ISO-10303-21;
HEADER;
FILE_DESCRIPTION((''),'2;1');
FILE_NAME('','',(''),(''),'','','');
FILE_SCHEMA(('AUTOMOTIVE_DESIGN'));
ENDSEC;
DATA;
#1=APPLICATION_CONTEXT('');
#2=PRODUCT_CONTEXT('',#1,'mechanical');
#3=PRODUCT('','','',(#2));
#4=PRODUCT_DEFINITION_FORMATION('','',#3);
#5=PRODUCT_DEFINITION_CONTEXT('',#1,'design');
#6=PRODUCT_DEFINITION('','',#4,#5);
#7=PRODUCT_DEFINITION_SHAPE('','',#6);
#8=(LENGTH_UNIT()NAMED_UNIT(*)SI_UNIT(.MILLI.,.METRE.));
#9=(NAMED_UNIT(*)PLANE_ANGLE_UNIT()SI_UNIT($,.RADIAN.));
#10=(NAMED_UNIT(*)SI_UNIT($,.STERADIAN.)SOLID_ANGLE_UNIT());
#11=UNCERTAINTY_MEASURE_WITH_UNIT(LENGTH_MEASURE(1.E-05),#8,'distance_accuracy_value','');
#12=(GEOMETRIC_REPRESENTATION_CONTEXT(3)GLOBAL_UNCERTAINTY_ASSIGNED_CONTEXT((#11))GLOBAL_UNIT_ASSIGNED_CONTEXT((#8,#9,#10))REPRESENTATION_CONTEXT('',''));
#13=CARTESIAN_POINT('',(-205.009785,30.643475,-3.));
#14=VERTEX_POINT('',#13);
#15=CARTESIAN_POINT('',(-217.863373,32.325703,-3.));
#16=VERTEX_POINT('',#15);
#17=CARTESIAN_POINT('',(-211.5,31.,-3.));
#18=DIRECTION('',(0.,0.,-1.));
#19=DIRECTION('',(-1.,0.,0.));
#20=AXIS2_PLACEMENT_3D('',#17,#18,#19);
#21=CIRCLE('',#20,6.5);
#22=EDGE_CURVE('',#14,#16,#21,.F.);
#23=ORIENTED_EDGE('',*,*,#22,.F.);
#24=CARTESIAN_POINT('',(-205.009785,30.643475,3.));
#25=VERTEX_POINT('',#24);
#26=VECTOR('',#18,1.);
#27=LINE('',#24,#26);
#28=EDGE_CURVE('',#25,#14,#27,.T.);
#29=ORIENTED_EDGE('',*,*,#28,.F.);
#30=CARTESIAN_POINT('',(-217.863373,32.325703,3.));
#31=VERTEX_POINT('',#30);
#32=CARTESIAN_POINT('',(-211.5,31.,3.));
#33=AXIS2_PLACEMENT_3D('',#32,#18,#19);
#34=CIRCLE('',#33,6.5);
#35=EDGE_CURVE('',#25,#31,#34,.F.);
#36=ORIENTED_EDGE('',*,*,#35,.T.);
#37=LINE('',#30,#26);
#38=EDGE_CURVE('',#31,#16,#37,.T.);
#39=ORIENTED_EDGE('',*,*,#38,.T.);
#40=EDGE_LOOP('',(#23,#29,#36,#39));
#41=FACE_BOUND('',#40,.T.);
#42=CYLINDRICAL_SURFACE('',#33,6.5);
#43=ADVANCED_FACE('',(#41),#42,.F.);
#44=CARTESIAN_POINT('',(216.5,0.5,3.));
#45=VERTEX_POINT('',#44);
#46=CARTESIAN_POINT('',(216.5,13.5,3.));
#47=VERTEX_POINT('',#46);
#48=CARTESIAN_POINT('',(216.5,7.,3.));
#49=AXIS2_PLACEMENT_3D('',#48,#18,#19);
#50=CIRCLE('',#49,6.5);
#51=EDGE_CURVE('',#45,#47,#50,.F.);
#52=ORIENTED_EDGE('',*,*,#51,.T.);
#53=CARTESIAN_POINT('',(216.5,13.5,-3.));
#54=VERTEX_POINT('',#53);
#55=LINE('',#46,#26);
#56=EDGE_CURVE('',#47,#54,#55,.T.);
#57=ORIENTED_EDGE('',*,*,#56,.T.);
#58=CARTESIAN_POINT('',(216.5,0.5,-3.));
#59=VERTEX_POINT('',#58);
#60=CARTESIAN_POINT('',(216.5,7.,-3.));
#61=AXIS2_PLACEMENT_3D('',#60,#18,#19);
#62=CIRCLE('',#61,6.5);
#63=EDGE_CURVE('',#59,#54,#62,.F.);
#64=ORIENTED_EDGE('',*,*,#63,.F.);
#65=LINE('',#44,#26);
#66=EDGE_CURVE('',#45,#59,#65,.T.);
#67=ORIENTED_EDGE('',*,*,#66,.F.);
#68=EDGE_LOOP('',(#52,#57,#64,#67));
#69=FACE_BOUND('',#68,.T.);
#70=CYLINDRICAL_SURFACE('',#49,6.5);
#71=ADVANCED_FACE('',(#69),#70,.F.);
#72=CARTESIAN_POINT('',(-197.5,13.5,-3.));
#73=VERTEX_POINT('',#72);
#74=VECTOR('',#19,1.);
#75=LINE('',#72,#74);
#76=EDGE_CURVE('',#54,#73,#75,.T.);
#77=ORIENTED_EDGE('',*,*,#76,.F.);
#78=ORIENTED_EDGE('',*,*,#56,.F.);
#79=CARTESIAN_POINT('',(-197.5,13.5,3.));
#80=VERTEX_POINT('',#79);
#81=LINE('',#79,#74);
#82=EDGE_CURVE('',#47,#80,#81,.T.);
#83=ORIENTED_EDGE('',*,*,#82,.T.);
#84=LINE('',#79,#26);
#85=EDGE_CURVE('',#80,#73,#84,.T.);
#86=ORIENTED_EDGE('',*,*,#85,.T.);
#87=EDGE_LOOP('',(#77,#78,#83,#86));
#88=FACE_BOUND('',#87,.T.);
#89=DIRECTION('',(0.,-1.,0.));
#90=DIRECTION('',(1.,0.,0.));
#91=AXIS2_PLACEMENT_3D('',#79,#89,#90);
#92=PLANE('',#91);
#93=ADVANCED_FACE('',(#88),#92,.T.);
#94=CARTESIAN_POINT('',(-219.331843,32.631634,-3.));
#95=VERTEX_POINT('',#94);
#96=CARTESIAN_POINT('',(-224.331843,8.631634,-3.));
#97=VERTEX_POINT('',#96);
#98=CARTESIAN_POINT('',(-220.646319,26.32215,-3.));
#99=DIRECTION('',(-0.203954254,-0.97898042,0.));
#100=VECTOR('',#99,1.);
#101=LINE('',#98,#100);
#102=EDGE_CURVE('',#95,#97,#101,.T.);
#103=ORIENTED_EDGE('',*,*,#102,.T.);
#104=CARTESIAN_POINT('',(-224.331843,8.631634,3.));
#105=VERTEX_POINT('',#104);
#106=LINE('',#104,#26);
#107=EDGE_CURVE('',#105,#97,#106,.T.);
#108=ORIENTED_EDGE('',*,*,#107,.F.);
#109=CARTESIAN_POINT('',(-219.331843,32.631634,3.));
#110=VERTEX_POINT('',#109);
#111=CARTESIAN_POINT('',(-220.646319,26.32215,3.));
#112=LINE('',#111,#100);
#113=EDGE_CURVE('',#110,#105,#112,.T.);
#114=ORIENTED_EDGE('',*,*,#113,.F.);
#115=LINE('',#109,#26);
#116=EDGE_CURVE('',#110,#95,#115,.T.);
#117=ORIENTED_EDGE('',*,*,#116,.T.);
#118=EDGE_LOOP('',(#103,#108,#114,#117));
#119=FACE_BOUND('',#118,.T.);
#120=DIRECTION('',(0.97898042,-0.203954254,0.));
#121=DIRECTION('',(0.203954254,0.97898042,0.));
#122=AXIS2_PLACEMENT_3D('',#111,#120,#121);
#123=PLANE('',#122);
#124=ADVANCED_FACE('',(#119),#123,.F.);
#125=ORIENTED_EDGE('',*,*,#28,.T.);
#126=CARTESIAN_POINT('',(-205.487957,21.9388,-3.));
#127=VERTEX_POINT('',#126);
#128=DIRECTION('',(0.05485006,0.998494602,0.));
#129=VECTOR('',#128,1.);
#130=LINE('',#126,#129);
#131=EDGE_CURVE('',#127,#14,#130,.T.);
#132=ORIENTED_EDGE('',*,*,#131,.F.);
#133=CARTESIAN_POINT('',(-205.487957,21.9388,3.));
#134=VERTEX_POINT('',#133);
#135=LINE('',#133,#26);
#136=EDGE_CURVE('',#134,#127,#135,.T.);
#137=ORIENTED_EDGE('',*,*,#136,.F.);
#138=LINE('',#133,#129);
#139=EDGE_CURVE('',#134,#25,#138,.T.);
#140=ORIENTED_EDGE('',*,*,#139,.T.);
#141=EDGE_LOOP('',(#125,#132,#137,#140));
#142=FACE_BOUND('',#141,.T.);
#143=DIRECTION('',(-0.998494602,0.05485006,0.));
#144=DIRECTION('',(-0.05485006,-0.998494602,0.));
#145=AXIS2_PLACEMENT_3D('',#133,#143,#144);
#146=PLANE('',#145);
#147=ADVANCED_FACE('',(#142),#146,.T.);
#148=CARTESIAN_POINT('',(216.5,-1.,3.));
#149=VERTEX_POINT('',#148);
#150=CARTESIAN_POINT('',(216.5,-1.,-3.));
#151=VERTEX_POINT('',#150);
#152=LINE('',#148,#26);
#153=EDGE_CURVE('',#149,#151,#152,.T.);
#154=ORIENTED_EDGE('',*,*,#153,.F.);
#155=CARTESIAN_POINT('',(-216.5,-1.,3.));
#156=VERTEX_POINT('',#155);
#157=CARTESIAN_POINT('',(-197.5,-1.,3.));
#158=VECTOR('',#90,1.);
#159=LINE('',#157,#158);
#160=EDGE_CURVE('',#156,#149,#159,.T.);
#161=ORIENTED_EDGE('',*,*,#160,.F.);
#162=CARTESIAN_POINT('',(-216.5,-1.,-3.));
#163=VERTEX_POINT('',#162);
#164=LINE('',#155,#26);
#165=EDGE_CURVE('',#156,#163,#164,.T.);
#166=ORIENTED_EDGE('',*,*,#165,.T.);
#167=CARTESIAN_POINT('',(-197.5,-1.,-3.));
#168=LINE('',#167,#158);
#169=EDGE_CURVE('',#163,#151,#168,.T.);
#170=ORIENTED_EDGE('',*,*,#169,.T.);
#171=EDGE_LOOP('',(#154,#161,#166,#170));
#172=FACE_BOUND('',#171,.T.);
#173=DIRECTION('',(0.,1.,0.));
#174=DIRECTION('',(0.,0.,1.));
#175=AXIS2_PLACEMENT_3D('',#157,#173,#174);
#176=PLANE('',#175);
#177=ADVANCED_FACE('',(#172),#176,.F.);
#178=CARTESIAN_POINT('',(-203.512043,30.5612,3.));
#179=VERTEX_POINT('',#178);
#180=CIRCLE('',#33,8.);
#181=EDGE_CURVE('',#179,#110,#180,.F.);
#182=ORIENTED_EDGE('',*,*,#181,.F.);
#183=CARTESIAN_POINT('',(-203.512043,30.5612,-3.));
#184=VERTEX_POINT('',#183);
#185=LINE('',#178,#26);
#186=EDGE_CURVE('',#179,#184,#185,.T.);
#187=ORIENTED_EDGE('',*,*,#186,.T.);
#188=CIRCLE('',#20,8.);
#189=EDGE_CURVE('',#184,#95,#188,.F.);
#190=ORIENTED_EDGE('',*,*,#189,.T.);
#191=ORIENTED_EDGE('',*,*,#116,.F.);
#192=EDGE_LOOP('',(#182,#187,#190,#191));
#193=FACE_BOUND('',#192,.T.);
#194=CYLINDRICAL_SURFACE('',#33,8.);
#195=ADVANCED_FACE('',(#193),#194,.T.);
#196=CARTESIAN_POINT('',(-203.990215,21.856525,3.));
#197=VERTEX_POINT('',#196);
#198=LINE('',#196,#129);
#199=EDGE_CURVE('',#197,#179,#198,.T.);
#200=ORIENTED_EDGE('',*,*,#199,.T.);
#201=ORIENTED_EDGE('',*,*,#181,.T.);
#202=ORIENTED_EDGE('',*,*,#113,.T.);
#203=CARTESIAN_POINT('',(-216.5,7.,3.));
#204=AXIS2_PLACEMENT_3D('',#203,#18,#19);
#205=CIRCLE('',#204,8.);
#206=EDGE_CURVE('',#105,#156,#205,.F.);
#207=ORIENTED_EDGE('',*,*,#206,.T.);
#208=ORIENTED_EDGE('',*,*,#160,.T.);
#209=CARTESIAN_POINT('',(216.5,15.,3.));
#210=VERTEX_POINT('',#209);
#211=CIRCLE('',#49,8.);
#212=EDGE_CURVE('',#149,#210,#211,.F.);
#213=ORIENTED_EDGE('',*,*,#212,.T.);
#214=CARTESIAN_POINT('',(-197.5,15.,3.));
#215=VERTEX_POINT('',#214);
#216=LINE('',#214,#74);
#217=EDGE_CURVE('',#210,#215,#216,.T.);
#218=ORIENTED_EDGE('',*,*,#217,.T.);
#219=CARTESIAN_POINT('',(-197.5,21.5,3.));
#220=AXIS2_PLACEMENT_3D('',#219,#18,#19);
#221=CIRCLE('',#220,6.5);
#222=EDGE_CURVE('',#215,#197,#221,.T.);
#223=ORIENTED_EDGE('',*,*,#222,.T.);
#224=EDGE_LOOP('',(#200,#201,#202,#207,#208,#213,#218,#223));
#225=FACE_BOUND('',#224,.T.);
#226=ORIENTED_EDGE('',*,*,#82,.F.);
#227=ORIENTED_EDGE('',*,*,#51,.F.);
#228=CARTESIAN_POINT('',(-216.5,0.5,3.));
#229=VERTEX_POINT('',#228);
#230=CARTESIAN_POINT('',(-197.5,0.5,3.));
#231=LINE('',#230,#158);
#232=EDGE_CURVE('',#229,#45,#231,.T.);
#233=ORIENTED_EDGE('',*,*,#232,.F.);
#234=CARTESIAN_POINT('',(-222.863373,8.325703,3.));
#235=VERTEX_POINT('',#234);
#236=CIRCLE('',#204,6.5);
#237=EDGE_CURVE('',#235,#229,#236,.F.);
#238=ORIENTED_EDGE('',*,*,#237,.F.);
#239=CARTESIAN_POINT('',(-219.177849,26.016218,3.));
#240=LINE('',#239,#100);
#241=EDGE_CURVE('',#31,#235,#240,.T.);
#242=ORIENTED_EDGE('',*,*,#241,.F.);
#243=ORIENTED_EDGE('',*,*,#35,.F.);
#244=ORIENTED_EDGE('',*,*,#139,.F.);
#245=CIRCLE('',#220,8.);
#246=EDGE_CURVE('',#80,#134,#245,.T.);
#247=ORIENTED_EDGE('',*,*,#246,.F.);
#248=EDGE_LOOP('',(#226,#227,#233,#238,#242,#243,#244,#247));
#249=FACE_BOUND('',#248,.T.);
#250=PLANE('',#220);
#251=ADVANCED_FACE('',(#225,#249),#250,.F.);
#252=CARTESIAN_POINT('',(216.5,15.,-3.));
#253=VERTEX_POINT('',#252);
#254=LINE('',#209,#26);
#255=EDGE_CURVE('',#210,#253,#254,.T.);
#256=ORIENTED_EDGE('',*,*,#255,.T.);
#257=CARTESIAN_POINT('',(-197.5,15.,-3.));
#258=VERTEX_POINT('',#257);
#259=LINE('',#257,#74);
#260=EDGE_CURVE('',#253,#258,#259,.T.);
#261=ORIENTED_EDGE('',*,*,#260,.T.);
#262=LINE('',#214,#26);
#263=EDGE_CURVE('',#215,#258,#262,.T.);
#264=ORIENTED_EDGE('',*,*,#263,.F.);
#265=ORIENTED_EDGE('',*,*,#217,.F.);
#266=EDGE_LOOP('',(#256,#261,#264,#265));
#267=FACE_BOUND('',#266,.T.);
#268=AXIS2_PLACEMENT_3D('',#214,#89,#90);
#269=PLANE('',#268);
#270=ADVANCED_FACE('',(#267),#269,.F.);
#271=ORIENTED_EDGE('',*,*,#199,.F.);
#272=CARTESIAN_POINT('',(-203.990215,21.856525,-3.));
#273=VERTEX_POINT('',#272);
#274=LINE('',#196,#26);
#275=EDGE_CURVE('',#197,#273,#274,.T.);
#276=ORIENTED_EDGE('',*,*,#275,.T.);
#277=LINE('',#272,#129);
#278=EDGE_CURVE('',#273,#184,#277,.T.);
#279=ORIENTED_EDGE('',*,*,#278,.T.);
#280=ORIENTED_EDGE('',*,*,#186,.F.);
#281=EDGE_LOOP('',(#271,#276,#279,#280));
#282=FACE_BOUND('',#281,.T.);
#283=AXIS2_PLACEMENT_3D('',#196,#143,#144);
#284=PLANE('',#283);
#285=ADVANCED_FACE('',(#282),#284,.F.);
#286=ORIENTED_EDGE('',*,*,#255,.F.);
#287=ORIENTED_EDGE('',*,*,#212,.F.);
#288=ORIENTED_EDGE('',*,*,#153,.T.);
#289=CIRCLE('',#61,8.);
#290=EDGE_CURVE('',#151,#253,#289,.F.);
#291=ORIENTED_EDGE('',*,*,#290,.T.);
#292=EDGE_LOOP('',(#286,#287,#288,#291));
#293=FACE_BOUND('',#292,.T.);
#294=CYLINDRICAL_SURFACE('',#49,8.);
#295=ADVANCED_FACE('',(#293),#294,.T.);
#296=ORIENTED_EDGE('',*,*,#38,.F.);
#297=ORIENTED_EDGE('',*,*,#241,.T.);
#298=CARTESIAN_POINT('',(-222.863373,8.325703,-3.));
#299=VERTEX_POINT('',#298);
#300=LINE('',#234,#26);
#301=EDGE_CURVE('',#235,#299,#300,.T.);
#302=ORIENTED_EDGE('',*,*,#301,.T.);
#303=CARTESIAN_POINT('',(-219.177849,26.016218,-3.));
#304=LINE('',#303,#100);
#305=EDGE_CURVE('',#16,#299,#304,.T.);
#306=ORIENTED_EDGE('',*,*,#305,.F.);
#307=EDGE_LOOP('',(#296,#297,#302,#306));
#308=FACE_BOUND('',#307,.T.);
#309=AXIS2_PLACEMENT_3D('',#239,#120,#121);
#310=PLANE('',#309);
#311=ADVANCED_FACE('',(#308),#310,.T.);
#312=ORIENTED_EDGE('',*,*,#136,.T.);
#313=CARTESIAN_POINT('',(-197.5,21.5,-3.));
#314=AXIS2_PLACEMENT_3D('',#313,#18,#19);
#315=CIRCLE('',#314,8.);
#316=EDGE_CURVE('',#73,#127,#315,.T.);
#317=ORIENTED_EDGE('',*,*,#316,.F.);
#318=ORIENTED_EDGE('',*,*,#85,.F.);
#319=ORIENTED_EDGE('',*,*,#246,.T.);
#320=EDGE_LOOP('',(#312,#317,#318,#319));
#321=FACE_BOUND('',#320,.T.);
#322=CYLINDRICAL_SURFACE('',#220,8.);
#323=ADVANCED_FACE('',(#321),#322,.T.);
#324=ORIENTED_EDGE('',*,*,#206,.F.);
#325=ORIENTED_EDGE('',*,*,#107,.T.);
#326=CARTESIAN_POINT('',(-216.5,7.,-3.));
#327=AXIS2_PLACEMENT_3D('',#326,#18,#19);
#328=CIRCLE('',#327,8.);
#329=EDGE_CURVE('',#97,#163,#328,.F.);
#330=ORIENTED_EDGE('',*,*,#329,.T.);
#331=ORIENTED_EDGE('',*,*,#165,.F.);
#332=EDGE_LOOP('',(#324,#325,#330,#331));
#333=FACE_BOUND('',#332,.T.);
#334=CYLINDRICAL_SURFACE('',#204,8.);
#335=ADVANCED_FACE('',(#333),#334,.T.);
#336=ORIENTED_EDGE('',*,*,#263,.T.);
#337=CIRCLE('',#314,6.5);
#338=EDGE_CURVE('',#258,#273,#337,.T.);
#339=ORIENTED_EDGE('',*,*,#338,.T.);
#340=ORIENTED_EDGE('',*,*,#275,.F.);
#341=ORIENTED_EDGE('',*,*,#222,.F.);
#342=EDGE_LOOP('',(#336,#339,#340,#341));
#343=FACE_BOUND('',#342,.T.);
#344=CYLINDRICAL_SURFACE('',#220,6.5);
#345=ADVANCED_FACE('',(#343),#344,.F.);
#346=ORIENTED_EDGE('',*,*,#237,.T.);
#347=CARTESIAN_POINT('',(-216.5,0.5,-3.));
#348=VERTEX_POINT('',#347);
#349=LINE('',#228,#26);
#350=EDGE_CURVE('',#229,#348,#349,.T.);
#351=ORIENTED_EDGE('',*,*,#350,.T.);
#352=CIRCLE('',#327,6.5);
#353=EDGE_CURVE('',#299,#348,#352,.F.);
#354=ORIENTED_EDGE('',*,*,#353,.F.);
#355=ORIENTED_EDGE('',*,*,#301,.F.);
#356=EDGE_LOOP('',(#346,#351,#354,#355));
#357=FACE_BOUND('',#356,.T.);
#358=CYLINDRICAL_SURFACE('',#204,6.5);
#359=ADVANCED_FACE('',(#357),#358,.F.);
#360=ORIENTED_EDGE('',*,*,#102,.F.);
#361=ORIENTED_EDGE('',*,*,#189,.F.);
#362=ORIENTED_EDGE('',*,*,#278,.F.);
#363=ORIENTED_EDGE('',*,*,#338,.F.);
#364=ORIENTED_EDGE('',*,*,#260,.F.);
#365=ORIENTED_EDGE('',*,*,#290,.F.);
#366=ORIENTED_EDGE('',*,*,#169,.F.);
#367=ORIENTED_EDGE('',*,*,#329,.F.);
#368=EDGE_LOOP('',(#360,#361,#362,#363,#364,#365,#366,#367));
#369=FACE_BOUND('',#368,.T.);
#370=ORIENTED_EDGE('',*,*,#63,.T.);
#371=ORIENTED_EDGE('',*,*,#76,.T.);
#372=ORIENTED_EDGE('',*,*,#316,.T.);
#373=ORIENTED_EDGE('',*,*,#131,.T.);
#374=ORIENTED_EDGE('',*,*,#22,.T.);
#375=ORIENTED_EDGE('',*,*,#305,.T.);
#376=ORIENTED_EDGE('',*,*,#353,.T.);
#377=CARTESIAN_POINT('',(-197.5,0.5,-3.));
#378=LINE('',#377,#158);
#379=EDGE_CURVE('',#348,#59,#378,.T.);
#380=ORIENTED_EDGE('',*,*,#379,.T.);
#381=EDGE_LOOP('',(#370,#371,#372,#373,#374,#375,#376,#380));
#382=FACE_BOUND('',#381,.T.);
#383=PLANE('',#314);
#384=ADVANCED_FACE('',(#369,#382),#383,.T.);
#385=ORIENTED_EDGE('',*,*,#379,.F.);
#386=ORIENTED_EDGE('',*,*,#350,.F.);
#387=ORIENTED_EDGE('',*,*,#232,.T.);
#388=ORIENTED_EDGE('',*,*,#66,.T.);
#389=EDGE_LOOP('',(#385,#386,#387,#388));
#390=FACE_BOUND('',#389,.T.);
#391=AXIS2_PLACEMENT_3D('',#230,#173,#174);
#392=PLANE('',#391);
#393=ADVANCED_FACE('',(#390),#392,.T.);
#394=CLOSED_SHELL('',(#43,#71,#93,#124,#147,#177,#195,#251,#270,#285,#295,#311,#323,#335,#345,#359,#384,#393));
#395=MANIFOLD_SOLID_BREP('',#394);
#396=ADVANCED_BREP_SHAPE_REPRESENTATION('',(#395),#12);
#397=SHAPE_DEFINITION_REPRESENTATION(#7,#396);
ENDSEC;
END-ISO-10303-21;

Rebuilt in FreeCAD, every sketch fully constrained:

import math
import FreeCAD as App
import Part
import Sketcher
from FreeCAD import Vector
Q = App.Units.Quantity

doc = App.newDocument("Part")
body = doc.addObject("PartDesign::Body", "Body")

# Sketch on XY plane
sketch1 = doc.addObject("Sketcher::SketchObject", "Sketch")
body.addObject(sketch1)
sketch1.AttachmentSupport = (doc.XY_Plane, [""])
sketch1.MapMode = "FlatFace"
sketch1.addGeometry(Part.LineSegment(Vector(-219.331843, 32.631634, 0), Vector(-224.331843, 8.631634, 0)), False)
sketch1.addGeometry(Part.ArcOfCircle(Part.Circle(Vector(-216.5, 7, 0), Vector(0, 0, 1), 8), math.radians(168.231711), math.radians(270)), False)
sketch1.addGeometry(Part.LineSegment(Vector(-216.5, -1, 0), Vector(216.5, -1, 0)), False)
sketch1.addGeometry(Part.ArcOfCircle(Part.Circle(Vector(216.5, 7, 0), Vector(0, 0, 1), 8), math.radians(-90), math.radians(90)), False)
sketch1.addGeometry(Part.LineSegment(Vector(216.5, 15, 0), Vector(-197.5, 15, 0)), False)
sketch1.addGeometry(Part.ArcOfCircle(Part.Circle(Vector(-197.5, 21.5, 0), Vector(0, 0, 1), 6.5), math.radians(176.855745), math.radians(270)), False)
sketch1.addGeometry(Part.LineSegment(Vector(-203.990215, 21.856525, 0), Vector(-203.512043, 30.5612, 0)), False)
sketch1.addGeometry(Part.ArcOfCircle(Part.Circle(Vector(-211.5, 31, 0), Vector(0, 0, 1), 8), math.radians(-3.144255), math.radians(168.231711)), False)
sketch1.addGeometry(Part.LineSegment(Vector(-222.863373, 8.325703, 0), Vector(-217.863373, 32.325703, 0)), False)
sketch1.addGeometry(Part.ArcOfCircle(Part.Circle(Vector(-211.5, 31, 0), Vector(0, 0, 1), 6.5), math.radians(-3.144255), math.radians(168.231711)), False)
sketch1.addGeometry(Part.LineSegment(Vector(-205.009785, 30.643475, 0), Vector(-205.487957, 21.9388, 0)), False)
sketch1.addGeometry(Part.ArcOfCircle(Part.Circle(Vector(-197.5, 21.5, 0), Vector(0, 0, 1), 8), math.radians(176.855745), math.radians(270)), False)
sketch1.addGeometry(Part.LineSegment(Vector(-197.5, 13.5, 0), Vector(216.5, 13.5, 0)), False)
sketch1.addGeometry(Part.ArcOfCircle(Part.Circle(Vector(216.5, 7, 0), Vector(0, 0, 1), 6.5), math.radians(-90), math.radians(90)), False)
sketch1.addGeometry(Part.LineSegment(Vector(216.5, 0.5, 0), Vector(-216.5, 0.5, 0)), False)
sketch1.addGeometry(Part.ArcOfCircle(Part.Circle(Vector(-216.5, 7, 0), Vector(0, 0, 1), 6.5), math.radians(168.231711), math.radians(270)), False)
sketch1.addConstraint(Sketcher.Constraint("Tangent", 0, 2, 1, 1))
sketch1.addConstraint(Sketcher.Constraint("Tangent", 1, 2, 2, 1))
sketch1.addConstraint(Sketcher.Constraint("Tangent", 2, 2, 3, 1))
sketch1.addConstraint(Sketcher.Constraint("Tangent", 3, 2, 4, 1))
sketch1.addConstraint(Sketcher.Constraint("Tangent", 4, 2, 5, 2))
sketch1.addConstraint(Sketcher.Constraint("Tangent", 5, 1, 6, 1))
sketch1.addConstraint(Sketcher.Constraint("Tangent", 6, 2, 7, 1))
sketch1.addConstraint(Sketcher.Constraint("Tangent", 7, 2, 0, 1))
sketch1.addConstraint(Sketcher.Constraint("Tangent", 8, 2, 9, 2))
sketch1.addConstraint(Sketcher.Constraint("Tangent", 9, 1, 10, 1))
sketch1.addConstraint(Sketcher.Constraint("Tangent", 10, 2, 11, 1))
sketch1.addConstraint(Sketcher.Constraint("Tangent", 11, 2, 12, 1))
sketch1.addConstraint(Sketcher.Constraint("Tangent", 12, 2, 13, 2))
sketch1.addConstraint(Sketcher.Constraint("Tangent", 13, 1, 14, 1))
sketch1.addConstraint(Sketcher.Constraint("Tangent", 14, 2, 15, 2))
sketch1.addConstraint(Sketcher.Constraint("Tangent", 15, 1, 8, 1))
sketch1.addConstraint(Sketcher.Constraint("Horizontal", 2))
sketch1.addConstraint(Sketcher.Constraint("Horizontal", 4))
sketch1.addConstraint(Sketcher.Constraint("Horizontal", 12))
sketch1.addConstraint(Sketcher.Constraint("Horizontal", 14))
sketch1.addConstraint(Sketcher.Constraint("Coincident", 9, 3, 7, 3))
sketch1.addConstraint(Sketcher.Constraint("Coincident", 11, 3, 5, 3))
sketch1.addConstraint(Sketcher.Constraint("Coincident", 13, 3, 3, 3))
sketch1.addConstraint(Sketcher.Constraint("Coincident", 15, 3, 1, 3))
sketch1.addConstraint(Sketcher.Constraint("Equal", 1, 3))
sketch1.addConstraint(Sketcher.Constraint("Equal", 3, 7))
sketch1.addConstraint(Sketcher.Constraint("Equal", 5, 9))
sketch1.addConstraint(Sketcher.Constraint("Equal", 7, 11))
sketch1.addConstraint(Sketcher.Constraint("Radius", 1, Q("8 mm")))
sketch1.addConstraint(Sketcher.Constraint("Radius", 5, Q("6.5 mm")))
sketch1.addConstraint(Sketcher.Constraint("DistanceX", 2, 1, 2, 2, Q("433 mm")))
sketch1.addConstraint(Sketcher.Constraint("DistanceX", 4, 2, 4, 1, Q("414 mm")))
sketch1.addConstraint(Sketcher.Constraint("DistanceY", -1, 1, 1, 3, Q("7 mm")))
sketch1.addConstraint(Sketcher.Constraint("DistanceY", -1, 1, 7, 3, Q("31 mm")))
sketch1.addConstraint(Sketcher.Constraint("DistanceX", 7, 3, 5, 3, Q("14 mm")))
sketch1.addConstraint(Sketcher.Constraint("DistanceX", 1, 3, -1, 1, Q("216.5 mm")))
pad1 = doc.addObject("PartDesign::Pad", "Pad")
body.addObject(pad1)
pad1.Profile = sketch1
pad1.Length = 6
pad1.Midplane = True

doc.recompute()
